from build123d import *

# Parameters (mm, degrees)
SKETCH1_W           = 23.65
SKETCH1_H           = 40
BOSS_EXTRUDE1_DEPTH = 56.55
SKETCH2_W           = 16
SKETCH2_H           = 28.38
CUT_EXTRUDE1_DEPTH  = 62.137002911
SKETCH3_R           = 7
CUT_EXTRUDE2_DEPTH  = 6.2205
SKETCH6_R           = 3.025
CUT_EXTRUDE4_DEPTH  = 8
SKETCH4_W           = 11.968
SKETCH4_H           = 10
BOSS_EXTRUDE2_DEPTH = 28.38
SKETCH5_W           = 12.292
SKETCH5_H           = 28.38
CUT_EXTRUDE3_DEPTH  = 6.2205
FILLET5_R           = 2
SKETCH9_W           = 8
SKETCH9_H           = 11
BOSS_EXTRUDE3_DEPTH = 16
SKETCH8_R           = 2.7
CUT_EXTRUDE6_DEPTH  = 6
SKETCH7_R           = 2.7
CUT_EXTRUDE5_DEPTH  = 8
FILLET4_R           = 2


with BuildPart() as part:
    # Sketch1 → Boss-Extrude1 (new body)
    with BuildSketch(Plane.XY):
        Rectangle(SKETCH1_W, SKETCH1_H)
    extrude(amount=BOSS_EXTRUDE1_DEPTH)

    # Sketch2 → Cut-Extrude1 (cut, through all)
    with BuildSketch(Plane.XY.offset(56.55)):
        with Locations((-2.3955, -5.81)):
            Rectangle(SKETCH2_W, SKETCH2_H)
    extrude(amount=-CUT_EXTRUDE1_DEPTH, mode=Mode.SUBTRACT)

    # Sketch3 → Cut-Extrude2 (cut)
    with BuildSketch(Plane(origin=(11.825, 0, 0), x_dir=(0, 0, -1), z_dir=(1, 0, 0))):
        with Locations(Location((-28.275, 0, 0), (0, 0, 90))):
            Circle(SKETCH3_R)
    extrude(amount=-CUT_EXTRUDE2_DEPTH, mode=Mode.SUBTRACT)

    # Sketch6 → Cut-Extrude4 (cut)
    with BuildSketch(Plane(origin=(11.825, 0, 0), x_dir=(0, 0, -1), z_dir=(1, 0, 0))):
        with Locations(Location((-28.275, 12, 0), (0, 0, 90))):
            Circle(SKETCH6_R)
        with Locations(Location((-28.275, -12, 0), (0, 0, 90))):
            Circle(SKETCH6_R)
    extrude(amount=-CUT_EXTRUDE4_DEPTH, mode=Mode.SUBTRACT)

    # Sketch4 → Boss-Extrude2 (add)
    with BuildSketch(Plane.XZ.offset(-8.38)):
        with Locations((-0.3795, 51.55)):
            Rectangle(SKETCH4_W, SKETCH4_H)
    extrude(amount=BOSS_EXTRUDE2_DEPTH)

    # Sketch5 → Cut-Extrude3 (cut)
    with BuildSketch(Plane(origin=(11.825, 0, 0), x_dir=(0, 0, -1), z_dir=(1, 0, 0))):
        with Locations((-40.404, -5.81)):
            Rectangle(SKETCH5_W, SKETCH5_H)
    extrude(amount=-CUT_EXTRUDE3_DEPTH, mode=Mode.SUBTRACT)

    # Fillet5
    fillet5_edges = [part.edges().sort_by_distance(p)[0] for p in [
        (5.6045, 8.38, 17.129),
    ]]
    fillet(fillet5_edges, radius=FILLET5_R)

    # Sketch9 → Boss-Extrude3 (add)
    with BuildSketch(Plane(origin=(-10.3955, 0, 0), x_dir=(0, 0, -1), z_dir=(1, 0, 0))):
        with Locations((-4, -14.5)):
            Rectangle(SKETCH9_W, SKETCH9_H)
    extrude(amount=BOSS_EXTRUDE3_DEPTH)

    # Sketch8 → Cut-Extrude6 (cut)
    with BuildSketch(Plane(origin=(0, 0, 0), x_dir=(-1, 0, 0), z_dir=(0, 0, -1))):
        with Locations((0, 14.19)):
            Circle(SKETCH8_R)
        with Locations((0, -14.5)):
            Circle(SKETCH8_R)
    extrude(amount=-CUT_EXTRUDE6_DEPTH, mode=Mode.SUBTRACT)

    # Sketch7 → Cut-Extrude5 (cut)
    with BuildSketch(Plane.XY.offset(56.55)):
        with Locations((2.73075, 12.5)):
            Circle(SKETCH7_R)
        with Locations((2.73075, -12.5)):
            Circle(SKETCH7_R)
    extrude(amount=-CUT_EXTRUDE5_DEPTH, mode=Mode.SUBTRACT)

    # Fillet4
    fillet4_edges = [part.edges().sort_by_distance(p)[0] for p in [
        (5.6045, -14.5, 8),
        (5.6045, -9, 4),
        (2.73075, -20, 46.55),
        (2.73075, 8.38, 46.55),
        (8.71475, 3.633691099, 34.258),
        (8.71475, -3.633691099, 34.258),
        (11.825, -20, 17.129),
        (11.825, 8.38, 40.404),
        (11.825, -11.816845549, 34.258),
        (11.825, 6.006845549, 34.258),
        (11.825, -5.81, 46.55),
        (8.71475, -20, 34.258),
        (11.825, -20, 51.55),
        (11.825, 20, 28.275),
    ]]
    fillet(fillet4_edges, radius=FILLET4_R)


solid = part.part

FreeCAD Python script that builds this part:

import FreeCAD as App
import Part
import Sketcher
from FreeCAD import Vector
Q = App.Units.Quantity


def edges_at(feature, points):
    """Names of the edges that pass closest to the given points."""
    edges = feature.Shape.Edges
    near = lambda p: min(range(len(edges)), key=lambda i: edges[i].distToShape(Part.Vertex(*p))[0])
    return sorted({f"Edge{near(p) + 1}" for p in points})


def add_polygon(sketch, points):
    """Adds a closed chain of lines whose ends are joined by coincident constraints."""
    first, n = sketch.GeometryCount, len(points)
    for a, b in zip(points, points[1:] + points[:1]):
        sketch.addGeometry(Part.LineSegment(App.Vector(*a, 0), App.Vector(*b, 0)), False)
    for i in range(n):
        sketch.addConstraint(Sketcher.Constraint("Coincident", first + i, 2, first + (i + 1) % n, 1))

doc = App.newDocument("Part")
body = doc.addObject("PartDesign::Body", "Body")

# Sketch on XY plane
sketch1 = body.newObject("Sketcher::SketchObject", "Sketch")
sketch1.AttachmentSupport = (doc.getObject("XY_Plane"), [""])
sketch1.MapMode = "FlatFace"
add_polygon(sketch1, [(-12, 20), (-12, -20), (12, -20), (12, 20)])  # lines 0-3
sketch1.addConstraint(Sketcher.Constraint("Vertical", 0))
sketch1.addConstraint(Sketcher.Constraint("Horizontal", 1))
sketch1.addConstraint(Sketcher.Constraint("Vertical", 2))
sketch1.addConstraint(Sketcher.Constraint("Horizontal", 3))
sketch1.addConstraint(Sketcher.Constraint("Symmetric", 0, 2, 2, 2, -1, 1))
sketch1.addConstraint(Sketcher.Constraint("DistanceY", 0, 2, 0, 1, Q("40 mm")))
sketch1.addConstraint(Sketcher.Constraint("DistanceX", 1, 1, 1, 2, Q("23.65 mm")))
pad1 = body.newObject("PartDesign::Pad", "Pad")
pad1.Profile = sketch1
pad1.Length = 56.55

# Sketch on XY plane
sketch2 = body.newObject("Sketcher::SketchObject", "Sketch001")
sketch2.AttachmentSupport = (doc.getObject("XY_Plane"), [""])
sketch2.MapMode = "FlatFace"
sketch2.AttachmentOffset = App.Placement(Vector(0, 0, 56.55), App.Rotation())
add_polygon(sketch2, [(-10, 8), (-10, -20), (6, -20), (6, 8)])  # lines 0-3
sketch2.addConstraint(Sketcher.Constraint("Vertical", 0))
sketch2.addConstraint(Sketcher.Constraint("Horizontal", 1))
sketch2.addConstraint(Sketcher.Constraint("Vertical", 2))
sketch2.addConstraint(Sketcher.Constraint("Horizontal", 3))
sketch2.addConstraint(Sketcher.Constraint("DistanceX", 1, 1, 1, 2, Q("16 mm")))
sketch2.addConstraint(Sketcher.Constraint("DistanceY", 0, 2, -1, 1, Q("20 mm")))
sketch2.addConstraint(Sketcher.Constraint("DistanceY", 0, 2, 0, 1, Q("28.38 mm")))
sketch2.addConstraint(Sketcher.Constraint("DistanceX", 0, 2, -1, 1, Q("10.3955 mm")))
pocket1 = body.newObject("PartDesign::Pocket", "Pocket")
pocket1.Profile = sketch2
pocket1.Type = "ThroughAll"

# Sketch on YZ plane
sketch3 = body.newObject("Sketcher::SketchObject", "Sketch002")
sketch3.AttachmentSupport = (doc.getObject("YZ_Plane"), [""])
sketch3.MapMode = "FlatFace"
sketch3.AttachmentOffset = App.Placement(Vector(0, 0, 11.825), App.Rotation())
sketch3.addGeometry(Part.Circle(Vector(0, 28, 0), Vector(0, 0, 1), 7), False)
sketch3.addConstraint(Sketcher.Constraint("PointOnObject", 0, 3, -2))
sketch3.addConstraint(Sketcher.Constraint("Diameter", 0, Q("14 mm")))
sketch3.addConstraint(Sketcher.Constraint("DistanceY", -1, 1, 0, 3, Q("28.275 mm")))
pocket2 = body.newObject("PartDesign::Pocket", "Pocket001")
pocket2.Profile = sketch3
pocket2.Length = 6.2205

# Sketch on YZ plane
sketch4 = body.newObject("Sketcher::SketchObject", "Sketch003")
sketch4.AttachmentSupport = (doc.getObject("YZ_Plane"), [""])
sketch4.MapMode = "FlatFace"
sketch4.AttachmentOffset = App.Placement(Vector(0, 0, 11.825), App.Rotation())
sketch4.addGeometry(Part.Circle(Vector(12, 28.3, 0), Vector(0, 0, 1), 3), False)
sketch4.addGeometry(Part.Circle(Vector(-12, 28.3, 0), Vector(0, 0, 1), 3), False)
sketch4.addConstraint(Sketcher.Constraint("Equal", 0, 1))
sketch4.addConstraint(Sketcher.Constraint("Symmetric", 0, 3, 1, 3, -2))
sketch4.addConstraint(Sketcher.Constraint("Diameter", 0, Q("6.05 mm")))
sketch4.addConstraint(Sketcher.Constraint("DistanceX", -1, 1, 0, 3, Q("12 mm")))
sketch4.addConstraint(Sketcher.Constraint("DistanceY", -1, 1, 0, 3, Q("28.275 mm")))
pocket3 = body.newObject("PartDesign::Pocket", "Pocket002")
pocket3.Profile = sketch4
pocket3.Length = 8

# Sketch on XZ plane
sketch5 = body.newObject("Sketcher::SketchObject", "Sketch004")
sketch5.AttachmentSupport = (doc.getObject("XZ_Plane"), [""])
sketch5.MapMode = "FlatFace"
sketch5.AttachmentOffset = App.Placement(Vector(0, 0, -8.38), App.Rotation())
add_polygon(sketch5, [(-6, 57), (-6, 47), (6, 47), (6, 57)])  # lines 0-3
sketch5.addConstraint(Sketcher.Constraint("Vertical", 0))
sketch5.addConstraint(Sketcher.Constraint("Horizontal", 1))
sketch5.addConstraint(Sketcher.Constraint("Vertical", 2))
sketch5.addConstraint(Sketcher.Constraint("Horizontal", 3))
sketch5.addConstraint(Sketcher.Constraint("DistanceY", 0, 2, 0, 1, Q("10 mm")))
sketch5.addConstraint(Sketcher.Constraint("DistanceX", 1, 1, 1, 2, Q("11.968 mm")))
sketch5.addConstraint(Sketcher.Constraint("DistanceY", -1, 1, 0, 2, Q("46.55 mm")))
sketch5.addConstraint(Sketcher.Constraint("DistanceX", 0, 2, -1, 1, Q("6.3635 mm")))
pad2 = body.newObject("PartDesign::Pad", "Pad001")
pad2.Profile = sketch5
pad2.Length = 28.38

# Sketch on YZ plane
sketch6 = body.newObject("Sketcher::SketchObject", "Sketch005")
sketch6.AttachmentSupport = (doc.getObject("YZ_Plane"), [""])
sketch6.MapMode = "FlatFace"
sketch6.AttachmentOffset = App.Placement(Vector(0, 0, 11.825), App.Rotation())
add_polygon(sketch6, [(8, 47), (-20, 47), (-20, 34), (8, 34)])  # lines 0-3
sketch6.addConstraint(Sketcher.Constraint("Horizontal", 0))
sketch6.addConstraint(Sketcher.Constraint("Vertical", 1))
sketch6.addConstraint(Sketcher.Constraint("Horizontal", 2))
sketch6.addConstraint(Sketcher.Constraint("Vertical", 3))
sketch6.addConstraint(Sketcher.Constraint("DistanceX", 0, 2, -1, 1, Q("20 mm")))
sketch6.addConstraint(Sketcher.Constraint("DistanceX", 0, 2, 0, 1, Q("28.38 mm")))
sketch6.addConstraint(Sketcher.Constraint("DistanceY", 1, 2, 1, 1, Q("12.292 mm")))
sketch6.addConstraint(Sketcher.Constraint("DistanceY", -1, 1, 0, 2, Q("46.55 mm")))
pocket4 = body.newObject("PartDesign::Pocket", "Pocket003")
pocket4.Profile = sketch6
pocket4.Length = 6.2205
doc.recompute()

fillet = body.newObject("PartDesign::Fillet", "Fillet")
fillet.Base = (pocket4, edges_at(pocket4, [(5.604, 8.38, 17.129)]))
fillet.Radius = 2

# Sketch on YZ plane
sketch7 = body.newObject("Sketcher::SketchObject", "Sketch006")
sketch7.AttachmentSupport = (doc.getObject("YZ_Plane"), [""])
sketch7.MapMode = "FlatFace"
sketch7.AttachmentOffset = App.Placement(Vector(0, 0, -10.3955), App.Rotation())
add_polygon(sketch7, [(-9, 8), (-20, 8), (-20, 0), (-9, 0)])  # lines 0-3
sketch7.addConstraint(Sketcher.Constraint("Horizontal", 0))
sketch7.addConstraint(Sketcher.Constraint("Vertical", 1))
sketch7.addConstraint(Sketcher.Constraint("Horizontal", 2))
sketch7.addConstraint(Sketcher.Constraint("Vertical", 3))
sketch7.addConstraint(Sketcher.Constraint("PointOnObject", 1, 2, -1))
sketch7.addConstraint(Sketcher.Constraint("DistanceX", 0, 2, 0, 1, Q("11 mm")))
sketch7.addConstraint(Sketcher.Constraint("DistanceY", 1, 2, 1, 1, Q("8 mm")))
sketch7.addConstraint(Sketcher.Constraint("DistanceX", 0, 2, -1, 1, Q("20 mm")))
pad3 = body.newObject("PartDesign::Pad", "Pad002")
pad3.Profile = sketch7
pad3.Length = 16

# Sketch on XY plane
sketch8 = body.newObject("Sketcher::SketchObject", "Sketch007")
sketch8.AttachmentSupport = (doc.getObject("XY_Plane"), [""])
sketch8.MapMode = "FlatFace"
sketch8.addGeometry(Part.Circle(Vector(0, 14.2, 0), Vector(0, 0, 1), 2.7), False)
sketch8.addGeometry(Part.Circle(Vector(0, -14.5, 0), Vector(0, 0, 1), 2.7), False)
sketch8.addConstraint(Sketcher.Constraint("Equal", 0, 1))
sketch8.addConstraint(Sketcher.Constraint("PointOnObject", 0, 3, -2))
sketch8.addConstraint(Sketcher.Constraint("PointOnObject", 1, 3, -2))
sketch8.addConstraint(Sketcher.Constraint("Diameter", 0, Q("5.4 mm")))
sketch8.addConstraint(Sketcher.Constraint("DistanceY", 1, 3, -1, 1, Q("14.5 mm")))
sketch8.addConstraint(Sketcher.Constraint("DistanceY", -1, 1, 0, 3, Q("14.19 mm")))
pocket5 = body.newObject("PartDesign::Pocket", "Pocket004")
pocket5.Profile = sketch8
pocket5.Length = 6
pocket5.Reversed = True

# Sketch on XY plane
sketch9 = body.newObject("Sketcher::SketchObject", "Sketch008")
sketch9.AttachmentSupport = (doc.getObject("XY_Plane"), [""])
sketch9.MapMode = "FlatFace"
sketch9.AttachmentOffset = App.Placement(Vector(0, 0, 56.55), App.Rotation())
sketch9.addGeometry(Part.Circle(Vector(2.7, 12.5, 0), Vector(0, 0, 1), 2.7), False)
sketch9.addGeometry(Part.Circle(Vector(2.7, -12.5, 0), Vector(0, 0, 1), 2.7), False)
sketch9.addConstraint(Sketcher.Constraint("Equal", 0, 1))
sketch9.addConstraint(Sketcher.Constraint("Symmetric", 0, 3, 1, 3, -1))
sketch9.addConstraint(Sketcher.Constraint("Diameter", 0, Q("5.4 mm")))
sketch9.addConstraint(Sketcher.Constraint("DistanceY", 1, 3, 0, 3, Q("25 mm")))
sketch9.addConstraint(Sketcher.Constraint("DistanceX", -1, 1, 0, 3, Q("2.73075 mm")))
pocket6 = body.newObject("PartDesign::Pocket", "Pocket005")
pocket6.Profile = sketch9
pocket6.Length = 8
doc.recompute()

fillet2 = body.newObject("PartDesign::Fillet", "Fillet001")
fillet2.Base = (pocket6, edges_at(pocket6, [
    (5.604, -14.5, 8),
    (5.604, -9, 4),
    (2.731, -20, 46.55),
    (2.731, 8.38, 46.55),
    (8.715, 3.634, 34.258),
    (8.715, -3.634, 34.258),
    (11.825, -20, 17.129),
    (11.825, 8.38, 40.404),
    (11.825, -11.817, 34.258),
    (11.825, 6.007, 34.258),
    (11.825, -5.81, 46.55),
    (8.715, -20, 34.258),
    (11.825, -20, 51.55),
    (11.825, 20, 28.275),
]))
fillet2.Radius = 2

doc.recompute()
